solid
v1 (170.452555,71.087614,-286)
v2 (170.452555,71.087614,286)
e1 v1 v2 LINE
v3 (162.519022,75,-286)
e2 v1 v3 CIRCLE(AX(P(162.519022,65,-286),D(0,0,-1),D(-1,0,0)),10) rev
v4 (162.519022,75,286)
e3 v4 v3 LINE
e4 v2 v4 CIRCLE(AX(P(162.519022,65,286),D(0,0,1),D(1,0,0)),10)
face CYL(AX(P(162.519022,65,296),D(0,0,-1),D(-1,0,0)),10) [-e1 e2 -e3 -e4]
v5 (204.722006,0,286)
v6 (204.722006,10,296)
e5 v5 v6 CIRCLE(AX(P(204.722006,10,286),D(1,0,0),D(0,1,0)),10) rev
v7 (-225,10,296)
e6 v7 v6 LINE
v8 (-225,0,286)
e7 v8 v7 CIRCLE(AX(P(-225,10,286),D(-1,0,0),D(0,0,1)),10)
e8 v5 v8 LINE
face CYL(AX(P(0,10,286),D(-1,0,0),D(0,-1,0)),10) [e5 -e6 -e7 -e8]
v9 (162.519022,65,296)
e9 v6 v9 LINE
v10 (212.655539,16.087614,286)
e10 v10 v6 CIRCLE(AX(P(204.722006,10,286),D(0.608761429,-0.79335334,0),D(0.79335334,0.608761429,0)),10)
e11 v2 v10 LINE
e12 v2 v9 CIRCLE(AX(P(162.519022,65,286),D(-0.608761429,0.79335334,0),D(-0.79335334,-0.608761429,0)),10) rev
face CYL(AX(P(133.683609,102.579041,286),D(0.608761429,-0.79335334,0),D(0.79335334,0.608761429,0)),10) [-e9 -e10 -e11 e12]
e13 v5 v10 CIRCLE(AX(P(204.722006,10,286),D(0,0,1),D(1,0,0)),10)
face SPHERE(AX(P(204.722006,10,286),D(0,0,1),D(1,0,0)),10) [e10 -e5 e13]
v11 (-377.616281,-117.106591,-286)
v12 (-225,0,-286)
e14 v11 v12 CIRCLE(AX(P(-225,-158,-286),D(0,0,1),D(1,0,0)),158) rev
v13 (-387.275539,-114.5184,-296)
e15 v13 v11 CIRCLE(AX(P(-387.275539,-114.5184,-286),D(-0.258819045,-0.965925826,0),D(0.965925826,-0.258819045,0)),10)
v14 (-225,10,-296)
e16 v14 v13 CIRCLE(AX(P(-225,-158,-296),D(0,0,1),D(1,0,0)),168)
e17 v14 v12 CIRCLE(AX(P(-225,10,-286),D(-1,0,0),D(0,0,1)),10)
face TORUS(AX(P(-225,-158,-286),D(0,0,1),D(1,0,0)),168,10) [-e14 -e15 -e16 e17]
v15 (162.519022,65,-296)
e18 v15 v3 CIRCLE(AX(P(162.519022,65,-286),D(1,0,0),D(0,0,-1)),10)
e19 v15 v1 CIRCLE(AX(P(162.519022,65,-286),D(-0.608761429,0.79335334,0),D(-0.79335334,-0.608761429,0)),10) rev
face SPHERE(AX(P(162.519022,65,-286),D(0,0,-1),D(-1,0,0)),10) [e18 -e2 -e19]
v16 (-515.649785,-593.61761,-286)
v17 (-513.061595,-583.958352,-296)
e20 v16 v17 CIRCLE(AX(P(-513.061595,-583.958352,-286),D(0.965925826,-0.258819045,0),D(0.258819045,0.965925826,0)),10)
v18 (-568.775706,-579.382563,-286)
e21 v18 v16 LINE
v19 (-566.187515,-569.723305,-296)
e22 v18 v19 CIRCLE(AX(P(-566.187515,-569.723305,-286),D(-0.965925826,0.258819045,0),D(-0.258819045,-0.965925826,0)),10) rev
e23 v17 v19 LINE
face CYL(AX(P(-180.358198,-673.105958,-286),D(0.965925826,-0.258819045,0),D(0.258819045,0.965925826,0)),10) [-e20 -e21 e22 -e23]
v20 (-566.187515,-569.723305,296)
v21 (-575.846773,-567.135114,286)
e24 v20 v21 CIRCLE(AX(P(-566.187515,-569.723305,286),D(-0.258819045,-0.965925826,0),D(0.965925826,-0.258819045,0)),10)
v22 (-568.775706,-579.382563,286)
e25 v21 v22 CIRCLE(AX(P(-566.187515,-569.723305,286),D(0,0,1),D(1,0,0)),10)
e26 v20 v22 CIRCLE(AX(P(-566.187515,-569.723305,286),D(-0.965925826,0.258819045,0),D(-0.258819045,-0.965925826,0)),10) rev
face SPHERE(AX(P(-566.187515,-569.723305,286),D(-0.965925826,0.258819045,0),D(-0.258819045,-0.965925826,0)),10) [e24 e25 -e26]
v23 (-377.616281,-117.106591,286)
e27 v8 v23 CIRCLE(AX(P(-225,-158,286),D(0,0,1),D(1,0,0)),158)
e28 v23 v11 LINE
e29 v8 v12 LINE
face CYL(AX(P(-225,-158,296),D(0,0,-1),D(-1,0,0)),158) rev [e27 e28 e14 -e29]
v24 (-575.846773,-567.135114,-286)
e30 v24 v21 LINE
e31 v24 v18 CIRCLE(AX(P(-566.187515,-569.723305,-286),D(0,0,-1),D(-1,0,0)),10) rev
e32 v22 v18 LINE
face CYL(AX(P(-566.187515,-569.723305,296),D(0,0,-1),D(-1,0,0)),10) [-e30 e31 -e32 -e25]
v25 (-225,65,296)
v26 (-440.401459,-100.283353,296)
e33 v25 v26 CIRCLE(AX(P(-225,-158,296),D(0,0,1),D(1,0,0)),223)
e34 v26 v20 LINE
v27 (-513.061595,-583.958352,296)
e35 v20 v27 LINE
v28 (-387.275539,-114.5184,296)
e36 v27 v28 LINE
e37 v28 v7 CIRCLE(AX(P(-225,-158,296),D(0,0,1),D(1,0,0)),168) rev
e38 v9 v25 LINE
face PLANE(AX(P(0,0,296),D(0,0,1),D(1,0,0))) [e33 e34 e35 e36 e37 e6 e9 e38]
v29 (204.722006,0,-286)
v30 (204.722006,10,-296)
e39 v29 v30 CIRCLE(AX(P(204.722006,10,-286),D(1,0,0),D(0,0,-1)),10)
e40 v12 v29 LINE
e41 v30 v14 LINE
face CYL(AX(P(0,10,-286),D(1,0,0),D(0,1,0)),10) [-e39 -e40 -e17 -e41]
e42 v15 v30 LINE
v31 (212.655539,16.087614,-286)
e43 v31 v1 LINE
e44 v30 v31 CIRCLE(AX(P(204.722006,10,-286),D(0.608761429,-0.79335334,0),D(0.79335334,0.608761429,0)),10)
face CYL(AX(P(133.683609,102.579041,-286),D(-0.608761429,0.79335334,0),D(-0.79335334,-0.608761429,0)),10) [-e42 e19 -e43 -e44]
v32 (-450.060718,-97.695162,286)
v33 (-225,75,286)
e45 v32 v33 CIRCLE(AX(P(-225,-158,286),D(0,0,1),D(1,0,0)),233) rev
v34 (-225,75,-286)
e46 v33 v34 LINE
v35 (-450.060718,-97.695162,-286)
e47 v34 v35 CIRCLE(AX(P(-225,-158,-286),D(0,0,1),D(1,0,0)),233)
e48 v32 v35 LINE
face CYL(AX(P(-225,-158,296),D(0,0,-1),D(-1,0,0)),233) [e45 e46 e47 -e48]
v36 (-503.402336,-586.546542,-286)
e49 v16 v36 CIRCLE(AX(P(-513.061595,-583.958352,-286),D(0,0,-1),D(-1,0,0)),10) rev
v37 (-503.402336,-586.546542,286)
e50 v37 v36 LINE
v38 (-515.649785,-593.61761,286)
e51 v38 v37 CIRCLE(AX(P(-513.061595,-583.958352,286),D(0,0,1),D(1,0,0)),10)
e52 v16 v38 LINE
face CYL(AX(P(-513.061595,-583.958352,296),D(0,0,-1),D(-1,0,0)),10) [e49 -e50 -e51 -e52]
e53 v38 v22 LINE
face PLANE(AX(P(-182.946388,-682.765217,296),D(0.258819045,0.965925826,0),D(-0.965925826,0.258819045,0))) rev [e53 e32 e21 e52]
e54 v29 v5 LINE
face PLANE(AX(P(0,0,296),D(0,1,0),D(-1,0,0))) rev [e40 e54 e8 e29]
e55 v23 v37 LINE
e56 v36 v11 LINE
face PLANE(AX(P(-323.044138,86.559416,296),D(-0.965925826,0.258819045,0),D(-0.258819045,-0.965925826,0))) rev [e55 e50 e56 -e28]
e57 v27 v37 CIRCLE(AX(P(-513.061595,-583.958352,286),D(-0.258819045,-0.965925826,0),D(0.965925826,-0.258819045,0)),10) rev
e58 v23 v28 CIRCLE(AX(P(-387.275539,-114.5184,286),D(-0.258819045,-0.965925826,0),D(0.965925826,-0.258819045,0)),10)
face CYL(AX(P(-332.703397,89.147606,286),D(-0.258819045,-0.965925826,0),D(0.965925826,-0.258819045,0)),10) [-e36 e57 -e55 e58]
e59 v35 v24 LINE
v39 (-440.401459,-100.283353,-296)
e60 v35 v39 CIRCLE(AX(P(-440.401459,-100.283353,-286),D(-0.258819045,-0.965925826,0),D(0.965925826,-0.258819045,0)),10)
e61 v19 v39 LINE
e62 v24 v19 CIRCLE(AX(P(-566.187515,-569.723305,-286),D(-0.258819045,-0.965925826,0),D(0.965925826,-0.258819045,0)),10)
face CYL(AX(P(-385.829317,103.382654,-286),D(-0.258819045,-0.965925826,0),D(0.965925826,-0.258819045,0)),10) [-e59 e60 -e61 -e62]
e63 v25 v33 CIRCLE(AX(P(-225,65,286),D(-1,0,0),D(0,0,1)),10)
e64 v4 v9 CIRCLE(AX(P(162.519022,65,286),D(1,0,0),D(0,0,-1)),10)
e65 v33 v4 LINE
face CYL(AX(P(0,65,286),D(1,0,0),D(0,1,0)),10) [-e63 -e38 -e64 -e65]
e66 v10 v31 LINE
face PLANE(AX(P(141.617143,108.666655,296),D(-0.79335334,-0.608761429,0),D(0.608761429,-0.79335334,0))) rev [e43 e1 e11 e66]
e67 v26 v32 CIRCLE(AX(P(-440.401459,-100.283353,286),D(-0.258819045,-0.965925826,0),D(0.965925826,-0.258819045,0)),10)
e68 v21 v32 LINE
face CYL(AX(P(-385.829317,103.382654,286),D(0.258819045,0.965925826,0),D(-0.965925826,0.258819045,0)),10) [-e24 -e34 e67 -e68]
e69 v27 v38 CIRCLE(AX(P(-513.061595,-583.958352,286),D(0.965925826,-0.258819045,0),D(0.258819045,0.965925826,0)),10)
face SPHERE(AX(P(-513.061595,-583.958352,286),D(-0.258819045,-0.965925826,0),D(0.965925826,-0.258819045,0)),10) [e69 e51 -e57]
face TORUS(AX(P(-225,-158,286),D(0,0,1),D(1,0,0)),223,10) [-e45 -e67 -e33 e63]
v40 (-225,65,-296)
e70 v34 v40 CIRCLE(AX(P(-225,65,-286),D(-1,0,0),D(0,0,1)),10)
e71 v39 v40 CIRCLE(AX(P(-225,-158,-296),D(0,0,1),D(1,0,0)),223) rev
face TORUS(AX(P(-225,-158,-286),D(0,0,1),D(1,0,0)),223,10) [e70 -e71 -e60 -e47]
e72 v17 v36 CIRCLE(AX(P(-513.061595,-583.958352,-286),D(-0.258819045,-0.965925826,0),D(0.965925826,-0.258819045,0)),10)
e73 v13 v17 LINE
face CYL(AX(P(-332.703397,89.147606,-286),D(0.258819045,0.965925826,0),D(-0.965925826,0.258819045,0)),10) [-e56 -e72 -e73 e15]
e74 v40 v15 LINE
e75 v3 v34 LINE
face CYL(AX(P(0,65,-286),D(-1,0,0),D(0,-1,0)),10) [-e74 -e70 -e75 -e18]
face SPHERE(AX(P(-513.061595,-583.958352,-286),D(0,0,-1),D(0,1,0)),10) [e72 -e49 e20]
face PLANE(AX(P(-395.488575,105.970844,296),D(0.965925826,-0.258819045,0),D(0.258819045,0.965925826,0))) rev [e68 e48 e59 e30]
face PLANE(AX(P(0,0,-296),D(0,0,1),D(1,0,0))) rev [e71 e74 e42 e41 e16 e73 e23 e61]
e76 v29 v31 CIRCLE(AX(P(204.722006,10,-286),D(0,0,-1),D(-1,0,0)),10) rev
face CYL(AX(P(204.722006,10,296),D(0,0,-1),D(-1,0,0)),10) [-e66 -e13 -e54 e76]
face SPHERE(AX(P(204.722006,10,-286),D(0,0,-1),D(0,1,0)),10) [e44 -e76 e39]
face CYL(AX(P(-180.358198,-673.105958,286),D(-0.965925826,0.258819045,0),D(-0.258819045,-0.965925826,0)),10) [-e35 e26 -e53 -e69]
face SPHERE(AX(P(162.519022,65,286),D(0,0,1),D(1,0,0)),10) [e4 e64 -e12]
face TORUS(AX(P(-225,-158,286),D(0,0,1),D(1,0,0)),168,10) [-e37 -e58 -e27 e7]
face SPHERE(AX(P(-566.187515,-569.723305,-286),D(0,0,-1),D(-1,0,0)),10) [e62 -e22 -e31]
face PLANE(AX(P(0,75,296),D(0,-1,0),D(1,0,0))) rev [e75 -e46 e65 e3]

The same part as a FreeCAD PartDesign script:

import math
import FreeCAD as App
import Part
import Sketcher
from FreeCAD import Vector
Q = App.Units.Quantity

doc = App.newDocument("Part")
body = doc.addObject("PartDesign::Body", "Body")

# Sketch on XY plane
sketch1 = body.newObject("Sketcher::SketchObject", "Sketch")
sketch1.AttachmentSupport = (doc.getObject("XY_Plane"), [""])
sketch1.MapMode = "FlatFace"
sketch1.addGeometry([
    Part.ArcOfCircle(Part.Circle(Vector(-225, -158, 0), Vector(0, 0, 1), 158), math.radians(90), math.radians(165)),  # 0
    Part.LineSegment(Vector(-225, 0, 0), Vector(225, 0, 0)),  # 1
    Part.LineSegment(Vector(225, 0, 0), Vector(167, 75, 0)),  # 2
    Part.LineSegment(Vector(167, 75, 0), Vector(-225, 75, 0)),  # 3
    Part.ArcOfCircle(Part.Circle(Vector(-225, -158, 0), Vector(0, 0, 1), 233), math.radians(90), math.radians(165)),  # 4
    Part.LineSegment(Vector(-450, -98, 0), Vector(-578, -577, 0)),  # 5
    Part.LineSegment(Vector(-578, -577, 0), Vector(-506, -596, 0)),  # 6
    Part.LineSegment(Vector(-506, -596, 0), Vector(-378, -117, 0)),  # 7
], False)
sketch1.addConstraint([
    Sketcher.Constraint("Tangent", 0, 1, 1, 1),
    Sketcher.Constraint("Coincident", 1, 2, 2, 1),
    Sketcher.Constraint("Coincident", 2, 2, 3, 1),
    Sketcher.Constraint("Tangent", 3, 2, 4, 1),
    Sketcher.Constraint("Tangent", 4, 2, 5, 1),
    Sketcher.Constraint("Coincident", 5, 2, 6, 1),
    Sketcher.Constraint("Coincident", 6, 2, 7, 1),
    Sketcher.Constraint("Tangent", 7, 2, 0, 2),
    Sketcher.Constraint("Horizontal", 1),
    Sketcher.Constraint("Horizontal", 3),
    Sketcher.Constraint("Coincident", 4, 3, 0, 3),
    Sketcher.Constraint("Symmetric", 0, 1, 1, 2, -1, 1),
    Sketcher.Constraint("Perpendicular", 5, 6),
    Sketcher.Constraint("Perpendicular", 6, 7),
    Sketcher.Constraint("Radius", 0, 158.0),
    Sketcher.Constraint("Radius", 4, 233.0),
    Sketcher.Constraint("DistanceX", 1, 1, 1, 2, 450.0),
    Sketcher.Constraint("Angle", 5, Q("-105 deg")),
    Sketcher.Constraint("Distance", 5, 496.0),
    Sketcher.Constraint("Angle", 2, Q("127.5 deg")),
])
pad1 = body.newObject("PartDesign::Pad", "Pad")
pad1.Profile = sketch1
pad1.Length = 592
pad1.Midplane = True
doc.recompute()

fillet = body.newObject("PartDesign::Fillet", "Fillet")
fillet.Base = (pad1, ["Edge1"])
fillet.UseAllEdges = True
fillet.Radius = 10

doc.recompute()
